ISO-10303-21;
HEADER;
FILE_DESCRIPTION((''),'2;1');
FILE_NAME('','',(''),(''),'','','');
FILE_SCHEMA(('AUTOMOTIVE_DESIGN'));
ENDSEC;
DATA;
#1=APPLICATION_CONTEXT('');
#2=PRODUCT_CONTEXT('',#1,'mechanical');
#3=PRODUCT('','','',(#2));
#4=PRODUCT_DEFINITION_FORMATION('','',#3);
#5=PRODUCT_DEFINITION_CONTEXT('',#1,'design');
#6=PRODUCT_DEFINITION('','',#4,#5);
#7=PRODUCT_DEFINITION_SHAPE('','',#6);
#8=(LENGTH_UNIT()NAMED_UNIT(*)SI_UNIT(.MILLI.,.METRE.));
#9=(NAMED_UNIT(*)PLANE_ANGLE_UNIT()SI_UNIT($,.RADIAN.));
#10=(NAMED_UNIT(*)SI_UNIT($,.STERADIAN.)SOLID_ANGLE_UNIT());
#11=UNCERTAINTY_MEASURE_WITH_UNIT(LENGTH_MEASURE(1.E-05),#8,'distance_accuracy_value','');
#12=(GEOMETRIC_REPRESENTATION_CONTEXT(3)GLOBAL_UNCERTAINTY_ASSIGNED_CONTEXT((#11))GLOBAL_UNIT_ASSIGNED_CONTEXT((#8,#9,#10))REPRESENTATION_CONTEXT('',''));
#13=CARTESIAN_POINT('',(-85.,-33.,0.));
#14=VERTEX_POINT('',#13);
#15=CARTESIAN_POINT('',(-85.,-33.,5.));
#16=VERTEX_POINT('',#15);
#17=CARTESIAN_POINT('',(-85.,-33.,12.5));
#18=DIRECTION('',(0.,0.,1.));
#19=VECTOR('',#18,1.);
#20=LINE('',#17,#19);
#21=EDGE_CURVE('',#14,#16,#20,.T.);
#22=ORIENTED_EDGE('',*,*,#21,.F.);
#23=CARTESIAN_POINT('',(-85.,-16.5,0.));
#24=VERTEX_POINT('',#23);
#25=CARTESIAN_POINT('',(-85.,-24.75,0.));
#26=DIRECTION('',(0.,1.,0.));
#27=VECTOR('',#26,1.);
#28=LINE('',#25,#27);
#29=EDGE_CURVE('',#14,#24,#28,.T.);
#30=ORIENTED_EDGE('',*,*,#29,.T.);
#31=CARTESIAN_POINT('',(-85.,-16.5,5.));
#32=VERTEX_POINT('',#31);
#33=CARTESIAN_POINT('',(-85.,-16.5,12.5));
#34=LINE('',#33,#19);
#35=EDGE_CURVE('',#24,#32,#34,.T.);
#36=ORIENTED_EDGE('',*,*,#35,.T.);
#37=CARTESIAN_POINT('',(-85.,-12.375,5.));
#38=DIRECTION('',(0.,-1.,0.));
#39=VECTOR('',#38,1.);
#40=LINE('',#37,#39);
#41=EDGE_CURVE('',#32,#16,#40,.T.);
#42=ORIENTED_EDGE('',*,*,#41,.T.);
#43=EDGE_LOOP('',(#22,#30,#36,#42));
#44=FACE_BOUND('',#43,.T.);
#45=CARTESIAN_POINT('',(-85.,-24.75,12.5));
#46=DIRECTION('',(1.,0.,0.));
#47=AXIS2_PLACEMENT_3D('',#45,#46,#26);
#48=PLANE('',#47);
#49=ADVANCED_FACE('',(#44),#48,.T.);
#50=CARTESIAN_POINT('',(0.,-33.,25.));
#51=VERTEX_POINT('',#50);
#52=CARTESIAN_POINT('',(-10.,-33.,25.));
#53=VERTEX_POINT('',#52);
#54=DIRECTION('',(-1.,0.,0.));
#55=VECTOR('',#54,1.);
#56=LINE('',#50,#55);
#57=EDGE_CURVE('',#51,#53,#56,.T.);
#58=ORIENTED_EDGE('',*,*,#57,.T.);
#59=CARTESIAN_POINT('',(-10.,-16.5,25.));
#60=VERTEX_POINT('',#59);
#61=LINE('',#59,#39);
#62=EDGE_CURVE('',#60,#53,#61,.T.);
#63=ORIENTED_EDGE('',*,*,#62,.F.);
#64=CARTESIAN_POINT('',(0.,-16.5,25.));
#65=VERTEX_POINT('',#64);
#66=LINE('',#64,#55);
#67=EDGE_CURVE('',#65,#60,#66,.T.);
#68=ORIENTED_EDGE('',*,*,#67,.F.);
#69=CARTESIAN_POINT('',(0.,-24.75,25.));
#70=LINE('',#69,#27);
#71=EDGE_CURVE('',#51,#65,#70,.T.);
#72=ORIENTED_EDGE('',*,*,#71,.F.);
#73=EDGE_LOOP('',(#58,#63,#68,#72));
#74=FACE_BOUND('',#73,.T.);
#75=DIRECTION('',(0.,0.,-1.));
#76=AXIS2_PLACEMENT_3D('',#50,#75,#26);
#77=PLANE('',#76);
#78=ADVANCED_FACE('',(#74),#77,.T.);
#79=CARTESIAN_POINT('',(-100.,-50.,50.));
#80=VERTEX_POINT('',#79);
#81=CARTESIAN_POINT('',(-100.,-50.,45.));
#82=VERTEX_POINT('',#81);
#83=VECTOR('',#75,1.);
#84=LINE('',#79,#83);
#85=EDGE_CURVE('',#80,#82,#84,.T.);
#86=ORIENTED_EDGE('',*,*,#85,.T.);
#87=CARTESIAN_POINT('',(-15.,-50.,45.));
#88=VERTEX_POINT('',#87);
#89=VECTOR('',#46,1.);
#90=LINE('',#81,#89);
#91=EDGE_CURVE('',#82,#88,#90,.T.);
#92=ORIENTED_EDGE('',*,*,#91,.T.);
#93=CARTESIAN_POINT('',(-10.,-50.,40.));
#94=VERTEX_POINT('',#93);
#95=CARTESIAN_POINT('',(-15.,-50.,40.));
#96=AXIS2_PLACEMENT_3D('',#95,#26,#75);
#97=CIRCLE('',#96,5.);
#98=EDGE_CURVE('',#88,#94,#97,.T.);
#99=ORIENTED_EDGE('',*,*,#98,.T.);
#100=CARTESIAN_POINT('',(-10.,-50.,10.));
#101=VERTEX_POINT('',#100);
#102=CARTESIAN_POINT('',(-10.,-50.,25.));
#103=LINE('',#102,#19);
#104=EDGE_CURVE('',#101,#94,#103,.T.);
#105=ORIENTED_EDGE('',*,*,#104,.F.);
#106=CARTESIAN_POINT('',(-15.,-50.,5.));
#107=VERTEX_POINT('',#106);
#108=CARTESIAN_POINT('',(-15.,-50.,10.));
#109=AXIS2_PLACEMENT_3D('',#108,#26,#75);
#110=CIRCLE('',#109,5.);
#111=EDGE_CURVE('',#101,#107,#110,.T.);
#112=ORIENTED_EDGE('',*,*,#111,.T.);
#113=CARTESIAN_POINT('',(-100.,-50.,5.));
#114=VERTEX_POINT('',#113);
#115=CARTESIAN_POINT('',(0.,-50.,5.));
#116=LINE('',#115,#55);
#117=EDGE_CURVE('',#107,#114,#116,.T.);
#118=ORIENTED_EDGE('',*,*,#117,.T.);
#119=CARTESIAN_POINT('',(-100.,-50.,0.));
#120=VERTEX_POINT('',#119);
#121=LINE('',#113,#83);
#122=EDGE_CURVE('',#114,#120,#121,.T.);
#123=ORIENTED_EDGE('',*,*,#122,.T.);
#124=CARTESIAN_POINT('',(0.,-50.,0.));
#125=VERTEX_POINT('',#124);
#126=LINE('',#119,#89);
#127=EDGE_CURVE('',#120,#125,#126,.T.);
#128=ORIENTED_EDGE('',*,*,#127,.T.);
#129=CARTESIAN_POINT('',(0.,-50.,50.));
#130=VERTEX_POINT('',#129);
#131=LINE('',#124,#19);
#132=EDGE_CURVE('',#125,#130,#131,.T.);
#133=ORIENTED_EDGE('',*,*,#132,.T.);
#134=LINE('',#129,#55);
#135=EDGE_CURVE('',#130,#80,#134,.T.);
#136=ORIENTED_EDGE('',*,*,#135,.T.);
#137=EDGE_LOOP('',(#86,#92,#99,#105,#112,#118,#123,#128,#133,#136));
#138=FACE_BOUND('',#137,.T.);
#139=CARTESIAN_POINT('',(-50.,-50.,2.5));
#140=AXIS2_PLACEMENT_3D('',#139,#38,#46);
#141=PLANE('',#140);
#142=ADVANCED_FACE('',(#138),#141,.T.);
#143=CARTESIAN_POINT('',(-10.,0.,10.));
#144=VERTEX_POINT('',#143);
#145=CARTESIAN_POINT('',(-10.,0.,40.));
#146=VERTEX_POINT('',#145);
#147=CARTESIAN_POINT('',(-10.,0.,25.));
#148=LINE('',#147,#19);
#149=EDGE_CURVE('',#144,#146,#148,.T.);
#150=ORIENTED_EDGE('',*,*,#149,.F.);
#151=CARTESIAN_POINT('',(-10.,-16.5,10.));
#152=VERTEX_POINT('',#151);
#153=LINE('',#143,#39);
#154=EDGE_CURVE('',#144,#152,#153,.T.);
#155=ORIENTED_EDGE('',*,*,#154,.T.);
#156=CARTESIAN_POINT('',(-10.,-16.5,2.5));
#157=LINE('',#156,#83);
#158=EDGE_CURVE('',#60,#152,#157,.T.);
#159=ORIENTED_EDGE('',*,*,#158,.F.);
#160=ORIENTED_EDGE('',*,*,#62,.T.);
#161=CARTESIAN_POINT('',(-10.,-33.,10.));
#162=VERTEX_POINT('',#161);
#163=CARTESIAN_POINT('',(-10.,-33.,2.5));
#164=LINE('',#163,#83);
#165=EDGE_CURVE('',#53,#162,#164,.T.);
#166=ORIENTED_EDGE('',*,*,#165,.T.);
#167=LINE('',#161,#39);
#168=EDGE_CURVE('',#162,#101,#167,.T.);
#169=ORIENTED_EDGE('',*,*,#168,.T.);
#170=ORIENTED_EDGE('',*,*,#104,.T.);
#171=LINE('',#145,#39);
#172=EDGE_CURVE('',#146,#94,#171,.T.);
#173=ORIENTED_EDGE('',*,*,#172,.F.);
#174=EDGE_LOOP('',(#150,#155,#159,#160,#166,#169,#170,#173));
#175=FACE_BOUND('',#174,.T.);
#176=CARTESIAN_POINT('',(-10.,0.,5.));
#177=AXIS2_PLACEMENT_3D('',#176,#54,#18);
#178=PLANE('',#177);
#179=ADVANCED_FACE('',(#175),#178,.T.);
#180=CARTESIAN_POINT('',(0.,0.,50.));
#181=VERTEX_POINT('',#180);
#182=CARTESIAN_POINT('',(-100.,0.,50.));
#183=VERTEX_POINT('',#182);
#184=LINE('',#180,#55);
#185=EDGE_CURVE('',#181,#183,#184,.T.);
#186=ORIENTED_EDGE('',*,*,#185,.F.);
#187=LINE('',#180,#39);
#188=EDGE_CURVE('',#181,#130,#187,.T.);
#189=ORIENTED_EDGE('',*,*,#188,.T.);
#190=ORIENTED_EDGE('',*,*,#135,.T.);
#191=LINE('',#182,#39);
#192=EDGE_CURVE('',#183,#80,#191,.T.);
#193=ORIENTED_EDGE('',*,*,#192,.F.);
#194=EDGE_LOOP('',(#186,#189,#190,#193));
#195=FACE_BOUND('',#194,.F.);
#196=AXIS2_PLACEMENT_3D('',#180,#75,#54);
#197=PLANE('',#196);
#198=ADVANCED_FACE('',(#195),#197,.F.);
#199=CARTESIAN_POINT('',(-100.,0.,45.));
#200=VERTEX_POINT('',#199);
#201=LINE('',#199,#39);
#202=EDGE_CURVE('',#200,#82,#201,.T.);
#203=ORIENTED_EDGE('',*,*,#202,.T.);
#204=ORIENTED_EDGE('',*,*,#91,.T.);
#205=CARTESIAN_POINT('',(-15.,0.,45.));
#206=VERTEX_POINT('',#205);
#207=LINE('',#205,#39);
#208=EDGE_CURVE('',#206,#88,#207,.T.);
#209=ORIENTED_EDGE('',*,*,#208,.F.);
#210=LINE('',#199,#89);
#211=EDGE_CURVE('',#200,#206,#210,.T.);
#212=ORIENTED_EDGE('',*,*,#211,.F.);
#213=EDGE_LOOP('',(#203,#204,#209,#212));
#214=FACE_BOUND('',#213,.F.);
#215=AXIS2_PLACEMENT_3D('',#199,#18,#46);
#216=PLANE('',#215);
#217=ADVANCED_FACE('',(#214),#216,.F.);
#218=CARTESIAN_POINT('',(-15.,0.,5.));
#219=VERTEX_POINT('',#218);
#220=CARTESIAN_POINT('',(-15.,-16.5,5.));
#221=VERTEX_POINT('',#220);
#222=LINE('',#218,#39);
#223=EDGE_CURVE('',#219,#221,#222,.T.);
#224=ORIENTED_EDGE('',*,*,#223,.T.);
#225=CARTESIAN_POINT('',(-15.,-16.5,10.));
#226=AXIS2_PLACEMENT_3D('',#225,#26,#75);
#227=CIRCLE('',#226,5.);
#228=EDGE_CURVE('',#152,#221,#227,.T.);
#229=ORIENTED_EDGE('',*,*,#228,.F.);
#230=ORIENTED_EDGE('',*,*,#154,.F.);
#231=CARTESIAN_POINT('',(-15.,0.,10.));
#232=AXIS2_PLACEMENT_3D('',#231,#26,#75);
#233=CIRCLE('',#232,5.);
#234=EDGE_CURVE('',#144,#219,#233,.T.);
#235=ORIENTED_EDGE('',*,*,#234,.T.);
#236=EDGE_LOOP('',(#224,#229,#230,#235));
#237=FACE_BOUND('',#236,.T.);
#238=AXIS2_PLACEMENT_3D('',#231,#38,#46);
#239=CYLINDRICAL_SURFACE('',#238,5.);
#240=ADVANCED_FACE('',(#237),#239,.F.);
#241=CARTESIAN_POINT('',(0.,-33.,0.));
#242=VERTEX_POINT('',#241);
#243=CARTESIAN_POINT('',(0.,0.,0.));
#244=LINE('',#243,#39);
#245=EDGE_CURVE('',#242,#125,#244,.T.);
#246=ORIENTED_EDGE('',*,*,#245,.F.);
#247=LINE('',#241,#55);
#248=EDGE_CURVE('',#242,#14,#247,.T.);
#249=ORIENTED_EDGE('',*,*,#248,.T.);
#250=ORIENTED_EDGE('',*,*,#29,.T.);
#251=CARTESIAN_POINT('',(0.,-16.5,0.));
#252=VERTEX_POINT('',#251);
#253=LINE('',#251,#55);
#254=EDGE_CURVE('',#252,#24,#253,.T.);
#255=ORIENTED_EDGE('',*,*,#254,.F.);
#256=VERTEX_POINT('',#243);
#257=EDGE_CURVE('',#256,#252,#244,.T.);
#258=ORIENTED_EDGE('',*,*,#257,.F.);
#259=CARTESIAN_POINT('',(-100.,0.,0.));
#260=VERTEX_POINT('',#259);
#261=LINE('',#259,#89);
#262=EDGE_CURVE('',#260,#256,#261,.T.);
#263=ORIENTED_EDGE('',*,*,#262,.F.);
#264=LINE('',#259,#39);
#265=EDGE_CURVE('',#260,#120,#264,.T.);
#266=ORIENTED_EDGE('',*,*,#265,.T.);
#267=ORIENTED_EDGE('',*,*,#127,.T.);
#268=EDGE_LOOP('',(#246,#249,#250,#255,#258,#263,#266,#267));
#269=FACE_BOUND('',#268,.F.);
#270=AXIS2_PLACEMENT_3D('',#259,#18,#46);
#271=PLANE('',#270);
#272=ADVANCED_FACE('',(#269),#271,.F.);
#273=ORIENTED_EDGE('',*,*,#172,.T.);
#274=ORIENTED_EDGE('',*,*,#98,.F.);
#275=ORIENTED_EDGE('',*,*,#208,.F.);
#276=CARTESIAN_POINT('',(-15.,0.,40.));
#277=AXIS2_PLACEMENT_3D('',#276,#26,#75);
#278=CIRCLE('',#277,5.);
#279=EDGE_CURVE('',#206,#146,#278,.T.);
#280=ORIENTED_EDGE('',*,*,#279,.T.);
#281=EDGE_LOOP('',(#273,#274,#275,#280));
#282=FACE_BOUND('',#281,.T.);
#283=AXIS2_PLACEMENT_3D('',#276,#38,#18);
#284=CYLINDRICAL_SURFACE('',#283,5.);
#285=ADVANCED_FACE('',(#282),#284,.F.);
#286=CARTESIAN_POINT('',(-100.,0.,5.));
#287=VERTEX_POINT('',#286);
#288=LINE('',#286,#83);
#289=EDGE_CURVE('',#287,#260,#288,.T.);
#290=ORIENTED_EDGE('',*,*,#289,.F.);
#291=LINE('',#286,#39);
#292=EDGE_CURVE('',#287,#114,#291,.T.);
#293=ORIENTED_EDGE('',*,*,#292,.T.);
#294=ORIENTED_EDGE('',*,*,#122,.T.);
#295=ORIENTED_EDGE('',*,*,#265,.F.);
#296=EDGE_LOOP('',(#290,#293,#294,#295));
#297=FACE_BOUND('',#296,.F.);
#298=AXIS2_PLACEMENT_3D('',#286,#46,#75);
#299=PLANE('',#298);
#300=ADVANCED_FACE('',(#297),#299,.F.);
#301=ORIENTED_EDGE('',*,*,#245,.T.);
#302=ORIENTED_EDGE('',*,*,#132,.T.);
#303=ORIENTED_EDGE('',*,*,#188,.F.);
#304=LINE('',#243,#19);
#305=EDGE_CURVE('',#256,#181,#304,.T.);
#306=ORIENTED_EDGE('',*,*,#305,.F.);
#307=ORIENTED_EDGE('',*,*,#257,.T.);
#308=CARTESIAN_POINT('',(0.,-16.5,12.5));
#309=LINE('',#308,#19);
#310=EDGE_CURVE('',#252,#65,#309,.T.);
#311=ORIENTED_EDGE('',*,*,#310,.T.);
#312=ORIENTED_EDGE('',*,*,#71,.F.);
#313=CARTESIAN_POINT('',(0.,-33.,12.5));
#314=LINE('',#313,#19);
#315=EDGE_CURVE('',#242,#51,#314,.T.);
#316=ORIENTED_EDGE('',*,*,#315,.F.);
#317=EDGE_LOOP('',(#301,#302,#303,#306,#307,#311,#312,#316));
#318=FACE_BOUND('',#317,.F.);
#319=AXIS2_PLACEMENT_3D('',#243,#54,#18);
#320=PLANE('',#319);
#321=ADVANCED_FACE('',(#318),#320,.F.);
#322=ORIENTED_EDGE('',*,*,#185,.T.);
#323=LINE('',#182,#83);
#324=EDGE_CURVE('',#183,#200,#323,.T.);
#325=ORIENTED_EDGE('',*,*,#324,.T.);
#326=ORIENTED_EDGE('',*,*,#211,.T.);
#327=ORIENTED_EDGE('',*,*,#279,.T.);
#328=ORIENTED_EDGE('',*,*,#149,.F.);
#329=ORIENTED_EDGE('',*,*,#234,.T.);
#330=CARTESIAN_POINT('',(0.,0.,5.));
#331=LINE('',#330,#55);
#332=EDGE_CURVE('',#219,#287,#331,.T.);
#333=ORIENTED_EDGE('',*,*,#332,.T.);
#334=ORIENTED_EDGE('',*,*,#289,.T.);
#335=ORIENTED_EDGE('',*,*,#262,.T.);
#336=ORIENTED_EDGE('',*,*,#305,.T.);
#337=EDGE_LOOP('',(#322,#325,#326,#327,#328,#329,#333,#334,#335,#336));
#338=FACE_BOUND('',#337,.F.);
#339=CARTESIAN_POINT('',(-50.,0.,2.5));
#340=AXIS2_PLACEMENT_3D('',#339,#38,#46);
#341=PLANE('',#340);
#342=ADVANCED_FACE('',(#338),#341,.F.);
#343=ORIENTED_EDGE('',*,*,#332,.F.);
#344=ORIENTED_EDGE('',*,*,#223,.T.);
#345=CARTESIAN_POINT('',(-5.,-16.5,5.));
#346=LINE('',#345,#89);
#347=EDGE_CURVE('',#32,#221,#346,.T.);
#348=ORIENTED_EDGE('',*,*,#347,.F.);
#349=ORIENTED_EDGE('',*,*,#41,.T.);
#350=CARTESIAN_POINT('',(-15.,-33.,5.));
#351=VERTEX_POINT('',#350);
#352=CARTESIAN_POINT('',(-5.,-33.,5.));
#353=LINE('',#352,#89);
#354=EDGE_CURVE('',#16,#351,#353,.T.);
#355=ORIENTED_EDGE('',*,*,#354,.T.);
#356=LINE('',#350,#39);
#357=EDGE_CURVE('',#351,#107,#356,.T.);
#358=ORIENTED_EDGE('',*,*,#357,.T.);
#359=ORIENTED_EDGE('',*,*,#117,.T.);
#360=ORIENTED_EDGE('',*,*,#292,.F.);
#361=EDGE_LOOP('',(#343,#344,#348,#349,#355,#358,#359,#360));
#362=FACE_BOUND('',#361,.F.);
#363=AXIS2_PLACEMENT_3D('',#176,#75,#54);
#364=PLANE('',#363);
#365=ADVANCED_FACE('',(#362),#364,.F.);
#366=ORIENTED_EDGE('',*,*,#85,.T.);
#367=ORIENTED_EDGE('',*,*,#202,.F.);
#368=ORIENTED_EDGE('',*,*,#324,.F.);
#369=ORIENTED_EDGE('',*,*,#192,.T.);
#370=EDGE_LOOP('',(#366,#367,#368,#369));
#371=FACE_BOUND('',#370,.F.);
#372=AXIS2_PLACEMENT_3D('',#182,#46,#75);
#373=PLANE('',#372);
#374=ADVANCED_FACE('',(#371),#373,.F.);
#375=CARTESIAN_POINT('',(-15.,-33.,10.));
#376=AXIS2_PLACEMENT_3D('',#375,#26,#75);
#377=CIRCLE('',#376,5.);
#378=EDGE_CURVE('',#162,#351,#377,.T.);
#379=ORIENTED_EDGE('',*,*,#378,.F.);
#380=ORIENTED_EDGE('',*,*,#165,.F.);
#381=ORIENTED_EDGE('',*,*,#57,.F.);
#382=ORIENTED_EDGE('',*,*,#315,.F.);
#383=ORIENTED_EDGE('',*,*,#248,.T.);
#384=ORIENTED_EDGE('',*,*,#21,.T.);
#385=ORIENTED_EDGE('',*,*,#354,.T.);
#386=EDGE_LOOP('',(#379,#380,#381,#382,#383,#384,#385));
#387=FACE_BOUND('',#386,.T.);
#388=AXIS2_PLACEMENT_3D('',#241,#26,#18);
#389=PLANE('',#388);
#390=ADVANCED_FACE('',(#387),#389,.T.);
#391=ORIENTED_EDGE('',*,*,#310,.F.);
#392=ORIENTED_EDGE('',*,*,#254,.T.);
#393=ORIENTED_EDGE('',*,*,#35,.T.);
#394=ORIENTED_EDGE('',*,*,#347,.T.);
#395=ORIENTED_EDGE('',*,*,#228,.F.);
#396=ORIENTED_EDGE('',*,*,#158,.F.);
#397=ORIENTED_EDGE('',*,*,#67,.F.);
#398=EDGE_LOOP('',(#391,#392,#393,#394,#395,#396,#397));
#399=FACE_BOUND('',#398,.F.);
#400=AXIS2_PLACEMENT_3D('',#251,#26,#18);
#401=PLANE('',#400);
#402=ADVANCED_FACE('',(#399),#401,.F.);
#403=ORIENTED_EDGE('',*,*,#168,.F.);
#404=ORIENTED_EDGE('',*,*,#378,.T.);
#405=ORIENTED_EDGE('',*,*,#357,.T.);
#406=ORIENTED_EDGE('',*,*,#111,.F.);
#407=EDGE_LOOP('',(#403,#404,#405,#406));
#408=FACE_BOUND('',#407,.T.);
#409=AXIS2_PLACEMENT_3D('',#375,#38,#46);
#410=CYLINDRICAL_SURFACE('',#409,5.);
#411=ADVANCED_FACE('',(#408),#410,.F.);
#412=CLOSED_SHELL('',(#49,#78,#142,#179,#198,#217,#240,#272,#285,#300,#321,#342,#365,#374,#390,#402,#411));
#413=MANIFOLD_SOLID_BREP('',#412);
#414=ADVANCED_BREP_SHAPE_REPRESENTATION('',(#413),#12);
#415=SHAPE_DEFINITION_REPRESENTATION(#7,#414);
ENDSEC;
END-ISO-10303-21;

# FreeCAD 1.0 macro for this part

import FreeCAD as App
import Part
import Sketcher
Q = App.Units.Quantity


def edges_at(feature, points):
    """Names of the edges that pass closest to the given points."""
    edges = feature.Shape.Edges
    near = lambda p: min(range(len(edges)), key=lambda i: edges[i].distToShape(Part.Vertex(*p))[0])
    return sorted({f"Edge{near(p) + 1}" for p in points})

doc = App.newDocument("Part")
body = doc.addObject("PartDesign::Body", "Body")

# Sketch on XZ plane
sketch1 = doc.addObject("Sketcher::SketchObject", "Sketch")
body.addObject(sketch1)
sketch1.AttachmentSupport = (doc.XZ_Plane, [""])
sketch1.MapMode = "FlatFace"
sketch1.addGeometry([
    Part.LineSegment(App.Vector(-100, 0, 0), App.Vector(0, 0, 0)),  # 0
    Part.LineSegment(App.Vector(0, 0, 0), App.Vector(0, 50, 0)),  # 1
    Part.LineSegment(App.Vector(0, 50, 0), App.Vector(-100, 50, 0)),  # 2
    Part.LineSegment(App.Vector(-100, 50, 0), App.Vector(-100, 45, 0)),  # 3
    Part.LineSegment(App.Vector(-100, 45, 0), App.Vector(-10, 45, 0)),  # 4
    Part.LineSegment(App.Vector(-10, 45, 0), App.Vector(-10, 5, 0)),  # 5
    Part.LineSegment(App.Vector(-10, 5, 0), App.Vector(-100, 5, 0)),  # 6
    Part.LineSegment(App.Vector(-100, 5, 0), App.Vector(-100, 0, 0)),  # 7
], False)
sketch1.addConstraint([
    Sketcher.Constraint("Coincident", 0, 2, 1, 1),
    Sketcher.Constraint("Coincident", 1, 2, 2, 1),
    Sketcher.Constraint("Coincident", 2, 2, 3, 1),
    Sketcher.Constraint("Coincident", 3, 2, 4, 1),
    Sketcher.Constraint("Coincident", 4, 2, 5, 1),
    Sketcher.Constraint("Coincident", 5, 2, 6, 1),
    Sketcher.Constraint("Coincident", 6, 2, 7, 1),
    Sketcher.Constraint("Coincident", 7, 2, 0, 1),
    Sketcher.Constraint("Horizontal", 0),
    Sketcher.Constraint("Vertical", 1),
    Sketcher.Constraint("Horizontal", 2),
    Sketcher.Constraint("Vertical", 3),
    Sketcher.Constraint("Horizontal", 4),
    Sketcher.Constraint("Vertical", 5),
    Sketcher.Constraint("Horizontal", 6),
    Sketcher.Constraint("Vertical", 7),
    Sketcher.Constraint("Coincident", 0, 2, -1, 1),
    Sketcher.Constraint("Vertical", 3, 2, 6, 2),
    Sketcher.Constraint("Equal", 3, 7),
    Sketcher.Constraint("DistanceX", 0, 1, 0, 2, Q("100 mm")),
    Sketcher.Constraint("DistanceX", 4, 1, 4, 2, Q("90 mm")),
    Sketcher.Constraint("DistanceY", 1, 1, 1, 2, Q("50 mm")),
    Sketcher.Constraint("DistanceY", 3, 2, 3, 1, Q("5 mm")),
])
pad1 = doc.addObject("PartDesign::Pad", "Pad")
body.addObject(pad1)
pad1.Profile = sketch1
pad1.Length = 50

# Sketch on YZ plane
sketch2 = doc.addObject("Sketcher::SketchObject", "Sketch001")
body.addObject(sketch2)
sketch2.AttachmentSupport = (doc.YZ_Plane, [""])
sketch2.MapMode = "FlatFace"
sketch2.addGeometry([
    Part.LineSegment(App.Vector(-33, 25, 0), App.Vector(-33, 0, 0)),
    Part.LineSegment(App.Vector(-33, 0, 0), App.Vector(-16, 0, 0)),
    Part.LineSegment(App.Vector(-16, 0, 0), App.Vector(-16, 25, 0)),
    Part.LineSegment(App.Vector(-16, 25, 0), App.Vector(-33, 25, 0)),
], False)
sketch2.addConstraint([
    Sketcher.Constraint("Coincident", 0, 2, 1, 1),
    Sketcher.Constraint("Coincident", 1, 2, 2, 1),
    Sketcher.Constraint("Coincident", 2, 2, 3, 1),
    Sketcher.Constraint("Coincident", 3, 2, 0, 1),
    Sketcher.Constraint("Vertical", 0),
    Sketcher.Constraint("Horizontal", 1),
    Sketcher.Constraint("Vertical", 2),
    Sketcher.Constraint("Horizontal", 3),
    Sketcher.Constraint("PointOnObject", 0, 2, -1),
    Sketcher.Constraint("DistanceY", 0, 2, 0, 1, Q("25 mm")),
    Sketcher.Constraint("DistanceX", 1, 1, 1, 2, Q("16.5 mm")),
    Sketcher.Constraint("DistanceX", 0, 2, -1, 1, Q("33 mm")),
])
pocket1 = doc.addObject("PartDesign::Pocket", "Pocket")
body.addObject(pocket1)
pocket1.Profile = sketch2
pocket1.Length = 85
doc.recompute()

fillet = doc.addObject("PartDesign::Fillet", "Fillet")
body.addObject(fillet)
fillet.Base = (pocket1, edges_at(pocket1, [(-10, -8.25, 5), (-10, -41.5, 5), (-10, -25, 45)]))
fillet.Radius = 5

doc.recompute()
